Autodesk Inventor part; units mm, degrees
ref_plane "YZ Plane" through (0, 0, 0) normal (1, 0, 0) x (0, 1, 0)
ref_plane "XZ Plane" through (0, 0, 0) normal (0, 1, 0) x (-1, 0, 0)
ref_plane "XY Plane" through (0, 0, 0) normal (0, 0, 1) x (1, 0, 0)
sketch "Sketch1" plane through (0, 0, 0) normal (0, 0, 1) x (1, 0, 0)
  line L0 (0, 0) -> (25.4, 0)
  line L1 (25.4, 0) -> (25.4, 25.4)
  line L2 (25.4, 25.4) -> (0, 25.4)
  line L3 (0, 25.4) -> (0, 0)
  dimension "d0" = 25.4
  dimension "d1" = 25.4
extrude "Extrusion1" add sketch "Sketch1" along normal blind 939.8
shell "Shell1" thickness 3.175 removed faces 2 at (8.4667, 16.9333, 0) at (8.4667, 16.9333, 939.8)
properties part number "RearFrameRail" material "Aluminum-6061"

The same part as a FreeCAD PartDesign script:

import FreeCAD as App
import Part
import Sketcher

V = App.Vector
Q = App.Units.Quantity


def faces_at(feature, points):
    """Names of the faces that lie closest to the given points."""
    faces = feature.Shape.Faces
    near = lambda p: min(range(len(faces)), key=lambda i: faces[i].distToShape(Part.Vertex(*p))[0])
    return sorted({f"Face{near(p) + 1}" for p in points})

doc = App.newDocument("Part")
body = doc.addObject("PartDesign::Body", "Body")

sketch1 = body.newObject("Sketcher::SketchObject", "Sketch")
sketch1.AttachmentSupport = (doc.getObject("XY_Plane"), [""])
sketch1.MapMode = "FlatFace"
sketch1.addGeometry([
    Part.LineSegment(V(0, 25, 0), V(0, 0, 0)),
    Part.LineSegment(V(0, 0, 0), V(25, 0, 0)),
    Part.LineSegment(V(25, 0, 0), V(25, 25, 0)),
    Part.LineSegment(V(25, 25, 0), V(0, 25, 0)),
], False)
sketch1.addConstraint([
    Sketcher.Constraint("Coincident", 0, 2, 1, 1),
    Sketcher.Constraint("Coincident", 1, 2, 2, 1),
    Sketcher.Constraint("Coincident", 2, 2, 3, 1),
    Sketcher.Constraint("Coincident", 3, 2, 0, 1),
    Sketcher.Constraint("Vertical", 0),
    Sketcher.Constraint("Horizontal", 1),
    Sketcher.Constraint("Vertical", 2),
    Sketcher.Constraint("Horizontal", 3),
    Sketcher.Constraint("Coincident", 0, 2, -1, 1),
    Sketcher.Constraint("Equal", 3, 0),
    Sketcher.Constraint("DistanceX", 1, 1, 1, 2, Q("1 in")),
])
pad1 = body.newObject("PartDesign::Pad", "Pad")
pad1.Profile = sketch1
pad1.Length = Q("37 in")
doc.recompute()

thickness = body.newObject("PartDesign::Thickness", "Thickness")
thickness.Base = (pad1, faces_at(pad1, [(8.467, 16.933, 0), (8.467, 16.933, 939.8)]))
thickness.Value = Q("0.125 in")
thickness.Reversed = True
thickness.Join = "Intersection"

doc.recompute()
